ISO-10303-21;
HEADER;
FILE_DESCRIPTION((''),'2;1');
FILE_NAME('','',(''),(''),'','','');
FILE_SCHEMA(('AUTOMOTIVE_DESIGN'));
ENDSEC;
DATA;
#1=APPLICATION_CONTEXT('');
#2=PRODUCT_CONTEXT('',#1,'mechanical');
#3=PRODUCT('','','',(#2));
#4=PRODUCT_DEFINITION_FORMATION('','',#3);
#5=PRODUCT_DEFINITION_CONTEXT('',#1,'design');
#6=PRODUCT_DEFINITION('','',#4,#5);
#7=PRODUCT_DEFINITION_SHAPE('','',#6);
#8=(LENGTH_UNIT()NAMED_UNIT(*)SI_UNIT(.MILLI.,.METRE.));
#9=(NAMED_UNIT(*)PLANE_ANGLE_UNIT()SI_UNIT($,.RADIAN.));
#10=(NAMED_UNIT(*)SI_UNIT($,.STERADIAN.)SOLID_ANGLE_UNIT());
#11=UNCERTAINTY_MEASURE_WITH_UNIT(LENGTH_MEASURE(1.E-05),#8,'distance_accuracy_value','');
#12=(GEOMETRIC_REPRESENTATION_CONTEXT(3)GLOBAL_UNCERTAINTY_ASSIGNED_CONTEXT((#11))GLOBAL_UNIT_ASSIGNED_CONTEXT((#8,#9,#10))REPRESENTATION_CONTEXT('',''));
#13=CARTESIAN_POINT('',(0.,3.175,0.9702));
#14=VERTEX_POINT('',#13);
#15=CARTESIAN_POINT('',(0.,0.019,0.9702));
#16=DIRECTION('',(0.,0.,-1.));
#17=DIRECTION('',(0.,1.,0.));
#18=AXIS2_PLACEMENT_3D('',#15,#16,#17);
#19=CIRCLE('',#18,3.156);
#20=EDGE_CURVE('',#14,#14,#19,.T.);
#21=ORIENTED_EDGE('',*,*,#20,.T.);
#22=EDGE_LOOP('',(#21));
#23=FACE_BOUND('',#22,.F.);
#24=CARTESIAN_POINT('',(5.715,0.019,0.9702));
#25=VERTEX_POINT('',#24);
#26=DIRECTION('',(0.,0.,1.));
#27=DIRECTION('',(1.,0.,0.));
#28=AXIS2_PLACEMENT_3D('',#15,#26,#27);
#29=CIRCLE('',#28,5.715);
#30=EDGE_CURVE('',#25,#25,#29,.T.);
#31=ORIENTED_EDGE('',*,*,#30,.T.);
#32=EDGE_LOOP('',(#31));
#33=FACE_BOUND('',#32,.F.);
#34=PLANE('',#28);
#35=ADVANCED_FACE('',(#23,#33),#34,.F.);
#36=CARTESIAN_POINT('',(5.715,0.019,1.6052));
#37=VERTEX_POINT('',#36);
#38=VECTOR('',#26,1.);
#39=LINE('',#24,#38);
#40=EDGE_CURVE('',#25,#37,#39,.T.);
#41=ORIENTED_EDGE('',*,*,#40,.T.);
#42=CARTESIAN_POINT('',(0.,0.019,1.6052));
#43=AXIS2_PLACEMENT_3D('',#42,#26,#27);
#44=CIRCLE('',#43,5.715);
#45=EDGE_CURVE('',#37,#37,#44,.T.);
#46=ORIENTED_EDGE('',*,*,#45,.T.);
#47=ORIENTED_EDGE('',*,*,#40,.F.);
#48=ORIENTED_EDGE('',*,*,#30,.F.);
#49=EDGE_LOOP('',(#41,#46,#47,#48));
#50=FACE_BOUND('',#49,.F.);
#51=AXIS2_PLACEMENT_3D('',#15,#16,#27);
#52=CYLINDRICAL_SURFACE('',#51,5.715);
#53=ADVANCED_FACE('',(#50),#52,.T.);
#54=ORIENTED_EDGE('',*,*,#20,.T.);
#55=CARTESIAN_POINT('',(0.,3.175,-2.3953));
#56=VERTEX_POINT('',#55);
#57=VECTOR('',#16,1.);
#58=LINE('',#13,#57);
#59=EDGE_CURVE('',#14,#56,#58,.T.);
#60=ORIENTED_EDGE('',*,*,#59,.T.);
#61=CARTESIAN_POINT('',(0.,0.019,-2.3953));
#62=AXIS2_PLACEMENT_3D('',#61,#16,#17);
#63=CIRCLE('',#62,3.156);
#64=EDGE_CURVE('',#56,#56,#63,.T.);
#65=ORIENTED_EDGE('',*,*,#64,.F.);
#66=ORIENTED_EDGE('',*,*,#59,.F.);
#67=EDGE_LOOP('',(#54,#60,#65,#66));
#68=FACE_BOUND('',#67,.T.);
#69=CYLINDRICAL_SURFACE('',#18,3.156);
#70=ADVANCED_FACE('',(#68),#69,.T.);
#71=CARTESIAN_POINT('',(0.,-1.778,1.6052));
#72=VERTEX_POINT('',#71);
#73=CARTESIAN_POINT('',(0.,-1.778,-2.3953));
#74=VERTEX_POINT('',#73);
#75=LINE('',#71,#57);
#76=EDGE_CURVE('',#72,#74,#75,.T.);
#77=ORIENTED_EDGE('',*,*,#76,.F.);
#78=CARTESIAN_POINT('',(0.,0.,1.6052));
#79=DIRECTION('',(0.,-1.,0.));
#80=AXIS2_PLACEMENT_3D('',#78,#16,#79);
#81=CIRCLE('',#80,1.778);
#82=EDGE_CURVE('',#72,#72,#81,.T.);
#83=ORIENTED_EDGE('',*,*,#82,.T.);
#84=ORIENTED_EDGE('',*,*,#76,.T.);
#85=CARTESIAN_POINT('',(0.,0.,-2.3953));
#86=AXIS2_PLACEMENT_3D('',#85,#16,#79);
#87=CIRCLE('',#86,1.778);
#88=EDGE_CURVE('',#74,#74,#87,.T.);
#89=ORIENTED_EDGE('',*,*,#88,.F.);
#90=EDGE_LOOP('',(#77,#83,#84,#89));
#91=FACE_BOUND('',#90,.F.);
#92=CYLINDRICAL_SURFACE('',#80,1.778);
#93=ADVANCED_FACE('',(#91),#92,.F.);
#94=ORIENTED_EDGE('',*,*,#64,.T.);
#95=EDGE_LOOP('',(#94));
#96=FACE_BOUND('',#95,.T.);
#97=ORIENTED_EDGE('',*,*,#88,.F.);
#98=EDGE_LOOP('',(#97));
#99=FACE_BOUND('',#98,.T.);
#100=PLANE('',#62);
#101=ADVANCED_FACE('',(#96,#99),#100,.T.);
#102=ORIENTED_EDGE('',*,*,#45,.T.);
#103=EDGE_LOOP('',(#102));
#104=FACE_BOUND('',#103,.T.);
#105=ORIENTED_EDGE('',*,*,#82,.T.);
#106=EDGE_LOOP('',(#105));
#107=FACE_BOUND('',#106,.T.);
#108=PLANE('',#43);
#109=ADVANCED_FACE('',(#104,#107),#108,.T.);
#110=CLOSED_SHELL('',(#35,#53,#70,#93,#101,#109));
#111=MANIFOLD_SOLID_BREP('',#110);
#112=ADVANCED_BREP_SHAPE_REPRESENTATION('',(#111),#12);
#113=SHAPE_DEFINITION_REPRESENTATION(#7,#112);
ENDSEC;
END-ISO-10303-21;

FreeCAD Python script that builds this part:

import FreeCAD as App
import Part
import Sketcher
from FreeCAD import Vector
Q = App.Units.Quantity

doc = App.newDocument("Part")
body = doc.addObject("PartDesign::Body", "Body")

# Sketch on YZ plane
sketch1 = body.newObject("Sketcher::SketchObject", "Sketch")
sketch1.AttachmentSupport = (doc.getObject("YZ_Plane"), [""])
sketch1.MapMode = "FlatFace"
sketch1.addGeometry(Part.LineSegment(Vector(3.2, 1, 0), Vector(0, 1, 0)), False)
sketch1.addGeometry(Part.LineSegment(Vector(0, 1, 0), Vector(0, -2.4, 0)), False)
sketch1.addGeometry(Part.LineSegment(Vector(0, -2.4, 0), Vector(3.2, -2.4, 0)), False)
sketch1.addGeometry(Part.LineSegment(Vector(3.2, -2.4, 0), Vector(3.2, 1, 0)), False)
sketch1.addGeometry(Part.LineSegment(Vector(0, 1, 0), Vector(0, -2.4, 0)), True)  # axis
sketch1.addConstraint(Sketcher.Constraint("Coincident", 0, 2, 1, 1))
sketch1.addConstraint(Sketcher.Constraint("Coincident", 1, 2, 2, 1))
sketch1.addConstraint(Sketcher.Constraint("Coincident", 2, 2, 3, 1))
sketch1.addConstraint(Sketcher.Constraint("Coincident", 3, 2, 0, 1))
sketch1.addConstraint(Sketcher.Constraint("Horizontal", 0))
sketch1.addConstraint(Sketcher.Constraint("Vertical", 1))
sketch1.addConstraint(Sketcher.Constraint("Horizontal", 2))
sketch1.addConstraint(Sketcher.Constraint("Vertical", 3))
sketch1.addConstraint(Sketcher.Constraint("Vertical", 4))
sketch1.addConstraint(Sketcher.Constraint("Coincident", 4, 1, 0, 2))
sketch1.addConstraint(Sketcher.Constraint("Horizontal", 2, 2, 4, 2))
sketch1.addConstraint(Sketcher.Constraint("DistanceY", 1, 2, 1, 1, Q("0.1325 in")))
sketch1.addConstraint(Sketcher.Constraint("DistanceX", 0, 2, 0, 1, Q("3.156 mm")))
sketch1.addConstraint(Sketcher.Constraint("DistanceX", -1, 1, 2, 2, Q("0.125 in")))
sketch1.addConstraint(Sketcher.Constraint("DistanceY", -1, 1, 0, 2, Q("0.0382 in")))
revolution = body.newObject("PartDesign::Revolution", "Revolution")
revolution.Profile = sketch1
revolution.ReferenceAxis = (sketch1, ["Axis0"])
revolution.Angle = 360

# Sketch on XY plane
sketch2 = body.newObject("Sketcher::SketchObject", "Sketch001")
sketch2.AttachmentSupport = (doc.getObject("XY_Plane"), [""])
sketch2.MapMode = "FlatFace"
sketch2.AttachmentOffset = App.Placement(Vector(0, 0, 0.0381969 * 25.4), App.Rotation())
sketch2.addGeometry(Part.Circle(Vector(0, 0, 0), Vector(0, 0, 1), 6), False)
sketch2.addConstraint(Sketcher.Constraint("PointOnObject", 0, 3, -2))
sketch2.addConstraint(Sketcher.Constraint("Diameter", 0, Q("0.45 in")))
sketch2.addConstraint(Sketcher.Constraint("DistanceY", -1, 1, 0, 3, Q("0.019 mm")))
pad1 = body.newObject("PartDesign::Pad", "Pad")
pad1.Profile = sketch2
pad1.Length = Q("0.025 in")

# Sketch on XY plane
sketch3 = body.newObject("Sketcher::SketchObject", "Sketch002")
sketch3.AttachmentSupport = (doc.getObject("XY_Plane"), [""])
sketch3.MapMode = "FlatFace"
sketch3.AttachmentOffset = App.Placement(Vector(0, 0, 0.0631969 * 25.4), App.Rotation())
sketch3.addGeometry(Part.Circle(Vector(0, 0, 0), Vector(0, 0, 1), 1.8), False)
sketch3.addConstraint(Sketcher.Constraint("Coincident", 0, 3, -1, 1))
sketch3.addConstraint(Sketcher.Constraint("Diameter", 0, Q("0.14 in")))
doc.recompute()
hole = body.newObject("PartDesign::Hole", "Hole")
hole.Profile = sketch3
hole.ThreadType = "None"
hole.Diameter = Q("0.14 in")
hole.DepthType = "ThroughAll"

doc.recompute()
